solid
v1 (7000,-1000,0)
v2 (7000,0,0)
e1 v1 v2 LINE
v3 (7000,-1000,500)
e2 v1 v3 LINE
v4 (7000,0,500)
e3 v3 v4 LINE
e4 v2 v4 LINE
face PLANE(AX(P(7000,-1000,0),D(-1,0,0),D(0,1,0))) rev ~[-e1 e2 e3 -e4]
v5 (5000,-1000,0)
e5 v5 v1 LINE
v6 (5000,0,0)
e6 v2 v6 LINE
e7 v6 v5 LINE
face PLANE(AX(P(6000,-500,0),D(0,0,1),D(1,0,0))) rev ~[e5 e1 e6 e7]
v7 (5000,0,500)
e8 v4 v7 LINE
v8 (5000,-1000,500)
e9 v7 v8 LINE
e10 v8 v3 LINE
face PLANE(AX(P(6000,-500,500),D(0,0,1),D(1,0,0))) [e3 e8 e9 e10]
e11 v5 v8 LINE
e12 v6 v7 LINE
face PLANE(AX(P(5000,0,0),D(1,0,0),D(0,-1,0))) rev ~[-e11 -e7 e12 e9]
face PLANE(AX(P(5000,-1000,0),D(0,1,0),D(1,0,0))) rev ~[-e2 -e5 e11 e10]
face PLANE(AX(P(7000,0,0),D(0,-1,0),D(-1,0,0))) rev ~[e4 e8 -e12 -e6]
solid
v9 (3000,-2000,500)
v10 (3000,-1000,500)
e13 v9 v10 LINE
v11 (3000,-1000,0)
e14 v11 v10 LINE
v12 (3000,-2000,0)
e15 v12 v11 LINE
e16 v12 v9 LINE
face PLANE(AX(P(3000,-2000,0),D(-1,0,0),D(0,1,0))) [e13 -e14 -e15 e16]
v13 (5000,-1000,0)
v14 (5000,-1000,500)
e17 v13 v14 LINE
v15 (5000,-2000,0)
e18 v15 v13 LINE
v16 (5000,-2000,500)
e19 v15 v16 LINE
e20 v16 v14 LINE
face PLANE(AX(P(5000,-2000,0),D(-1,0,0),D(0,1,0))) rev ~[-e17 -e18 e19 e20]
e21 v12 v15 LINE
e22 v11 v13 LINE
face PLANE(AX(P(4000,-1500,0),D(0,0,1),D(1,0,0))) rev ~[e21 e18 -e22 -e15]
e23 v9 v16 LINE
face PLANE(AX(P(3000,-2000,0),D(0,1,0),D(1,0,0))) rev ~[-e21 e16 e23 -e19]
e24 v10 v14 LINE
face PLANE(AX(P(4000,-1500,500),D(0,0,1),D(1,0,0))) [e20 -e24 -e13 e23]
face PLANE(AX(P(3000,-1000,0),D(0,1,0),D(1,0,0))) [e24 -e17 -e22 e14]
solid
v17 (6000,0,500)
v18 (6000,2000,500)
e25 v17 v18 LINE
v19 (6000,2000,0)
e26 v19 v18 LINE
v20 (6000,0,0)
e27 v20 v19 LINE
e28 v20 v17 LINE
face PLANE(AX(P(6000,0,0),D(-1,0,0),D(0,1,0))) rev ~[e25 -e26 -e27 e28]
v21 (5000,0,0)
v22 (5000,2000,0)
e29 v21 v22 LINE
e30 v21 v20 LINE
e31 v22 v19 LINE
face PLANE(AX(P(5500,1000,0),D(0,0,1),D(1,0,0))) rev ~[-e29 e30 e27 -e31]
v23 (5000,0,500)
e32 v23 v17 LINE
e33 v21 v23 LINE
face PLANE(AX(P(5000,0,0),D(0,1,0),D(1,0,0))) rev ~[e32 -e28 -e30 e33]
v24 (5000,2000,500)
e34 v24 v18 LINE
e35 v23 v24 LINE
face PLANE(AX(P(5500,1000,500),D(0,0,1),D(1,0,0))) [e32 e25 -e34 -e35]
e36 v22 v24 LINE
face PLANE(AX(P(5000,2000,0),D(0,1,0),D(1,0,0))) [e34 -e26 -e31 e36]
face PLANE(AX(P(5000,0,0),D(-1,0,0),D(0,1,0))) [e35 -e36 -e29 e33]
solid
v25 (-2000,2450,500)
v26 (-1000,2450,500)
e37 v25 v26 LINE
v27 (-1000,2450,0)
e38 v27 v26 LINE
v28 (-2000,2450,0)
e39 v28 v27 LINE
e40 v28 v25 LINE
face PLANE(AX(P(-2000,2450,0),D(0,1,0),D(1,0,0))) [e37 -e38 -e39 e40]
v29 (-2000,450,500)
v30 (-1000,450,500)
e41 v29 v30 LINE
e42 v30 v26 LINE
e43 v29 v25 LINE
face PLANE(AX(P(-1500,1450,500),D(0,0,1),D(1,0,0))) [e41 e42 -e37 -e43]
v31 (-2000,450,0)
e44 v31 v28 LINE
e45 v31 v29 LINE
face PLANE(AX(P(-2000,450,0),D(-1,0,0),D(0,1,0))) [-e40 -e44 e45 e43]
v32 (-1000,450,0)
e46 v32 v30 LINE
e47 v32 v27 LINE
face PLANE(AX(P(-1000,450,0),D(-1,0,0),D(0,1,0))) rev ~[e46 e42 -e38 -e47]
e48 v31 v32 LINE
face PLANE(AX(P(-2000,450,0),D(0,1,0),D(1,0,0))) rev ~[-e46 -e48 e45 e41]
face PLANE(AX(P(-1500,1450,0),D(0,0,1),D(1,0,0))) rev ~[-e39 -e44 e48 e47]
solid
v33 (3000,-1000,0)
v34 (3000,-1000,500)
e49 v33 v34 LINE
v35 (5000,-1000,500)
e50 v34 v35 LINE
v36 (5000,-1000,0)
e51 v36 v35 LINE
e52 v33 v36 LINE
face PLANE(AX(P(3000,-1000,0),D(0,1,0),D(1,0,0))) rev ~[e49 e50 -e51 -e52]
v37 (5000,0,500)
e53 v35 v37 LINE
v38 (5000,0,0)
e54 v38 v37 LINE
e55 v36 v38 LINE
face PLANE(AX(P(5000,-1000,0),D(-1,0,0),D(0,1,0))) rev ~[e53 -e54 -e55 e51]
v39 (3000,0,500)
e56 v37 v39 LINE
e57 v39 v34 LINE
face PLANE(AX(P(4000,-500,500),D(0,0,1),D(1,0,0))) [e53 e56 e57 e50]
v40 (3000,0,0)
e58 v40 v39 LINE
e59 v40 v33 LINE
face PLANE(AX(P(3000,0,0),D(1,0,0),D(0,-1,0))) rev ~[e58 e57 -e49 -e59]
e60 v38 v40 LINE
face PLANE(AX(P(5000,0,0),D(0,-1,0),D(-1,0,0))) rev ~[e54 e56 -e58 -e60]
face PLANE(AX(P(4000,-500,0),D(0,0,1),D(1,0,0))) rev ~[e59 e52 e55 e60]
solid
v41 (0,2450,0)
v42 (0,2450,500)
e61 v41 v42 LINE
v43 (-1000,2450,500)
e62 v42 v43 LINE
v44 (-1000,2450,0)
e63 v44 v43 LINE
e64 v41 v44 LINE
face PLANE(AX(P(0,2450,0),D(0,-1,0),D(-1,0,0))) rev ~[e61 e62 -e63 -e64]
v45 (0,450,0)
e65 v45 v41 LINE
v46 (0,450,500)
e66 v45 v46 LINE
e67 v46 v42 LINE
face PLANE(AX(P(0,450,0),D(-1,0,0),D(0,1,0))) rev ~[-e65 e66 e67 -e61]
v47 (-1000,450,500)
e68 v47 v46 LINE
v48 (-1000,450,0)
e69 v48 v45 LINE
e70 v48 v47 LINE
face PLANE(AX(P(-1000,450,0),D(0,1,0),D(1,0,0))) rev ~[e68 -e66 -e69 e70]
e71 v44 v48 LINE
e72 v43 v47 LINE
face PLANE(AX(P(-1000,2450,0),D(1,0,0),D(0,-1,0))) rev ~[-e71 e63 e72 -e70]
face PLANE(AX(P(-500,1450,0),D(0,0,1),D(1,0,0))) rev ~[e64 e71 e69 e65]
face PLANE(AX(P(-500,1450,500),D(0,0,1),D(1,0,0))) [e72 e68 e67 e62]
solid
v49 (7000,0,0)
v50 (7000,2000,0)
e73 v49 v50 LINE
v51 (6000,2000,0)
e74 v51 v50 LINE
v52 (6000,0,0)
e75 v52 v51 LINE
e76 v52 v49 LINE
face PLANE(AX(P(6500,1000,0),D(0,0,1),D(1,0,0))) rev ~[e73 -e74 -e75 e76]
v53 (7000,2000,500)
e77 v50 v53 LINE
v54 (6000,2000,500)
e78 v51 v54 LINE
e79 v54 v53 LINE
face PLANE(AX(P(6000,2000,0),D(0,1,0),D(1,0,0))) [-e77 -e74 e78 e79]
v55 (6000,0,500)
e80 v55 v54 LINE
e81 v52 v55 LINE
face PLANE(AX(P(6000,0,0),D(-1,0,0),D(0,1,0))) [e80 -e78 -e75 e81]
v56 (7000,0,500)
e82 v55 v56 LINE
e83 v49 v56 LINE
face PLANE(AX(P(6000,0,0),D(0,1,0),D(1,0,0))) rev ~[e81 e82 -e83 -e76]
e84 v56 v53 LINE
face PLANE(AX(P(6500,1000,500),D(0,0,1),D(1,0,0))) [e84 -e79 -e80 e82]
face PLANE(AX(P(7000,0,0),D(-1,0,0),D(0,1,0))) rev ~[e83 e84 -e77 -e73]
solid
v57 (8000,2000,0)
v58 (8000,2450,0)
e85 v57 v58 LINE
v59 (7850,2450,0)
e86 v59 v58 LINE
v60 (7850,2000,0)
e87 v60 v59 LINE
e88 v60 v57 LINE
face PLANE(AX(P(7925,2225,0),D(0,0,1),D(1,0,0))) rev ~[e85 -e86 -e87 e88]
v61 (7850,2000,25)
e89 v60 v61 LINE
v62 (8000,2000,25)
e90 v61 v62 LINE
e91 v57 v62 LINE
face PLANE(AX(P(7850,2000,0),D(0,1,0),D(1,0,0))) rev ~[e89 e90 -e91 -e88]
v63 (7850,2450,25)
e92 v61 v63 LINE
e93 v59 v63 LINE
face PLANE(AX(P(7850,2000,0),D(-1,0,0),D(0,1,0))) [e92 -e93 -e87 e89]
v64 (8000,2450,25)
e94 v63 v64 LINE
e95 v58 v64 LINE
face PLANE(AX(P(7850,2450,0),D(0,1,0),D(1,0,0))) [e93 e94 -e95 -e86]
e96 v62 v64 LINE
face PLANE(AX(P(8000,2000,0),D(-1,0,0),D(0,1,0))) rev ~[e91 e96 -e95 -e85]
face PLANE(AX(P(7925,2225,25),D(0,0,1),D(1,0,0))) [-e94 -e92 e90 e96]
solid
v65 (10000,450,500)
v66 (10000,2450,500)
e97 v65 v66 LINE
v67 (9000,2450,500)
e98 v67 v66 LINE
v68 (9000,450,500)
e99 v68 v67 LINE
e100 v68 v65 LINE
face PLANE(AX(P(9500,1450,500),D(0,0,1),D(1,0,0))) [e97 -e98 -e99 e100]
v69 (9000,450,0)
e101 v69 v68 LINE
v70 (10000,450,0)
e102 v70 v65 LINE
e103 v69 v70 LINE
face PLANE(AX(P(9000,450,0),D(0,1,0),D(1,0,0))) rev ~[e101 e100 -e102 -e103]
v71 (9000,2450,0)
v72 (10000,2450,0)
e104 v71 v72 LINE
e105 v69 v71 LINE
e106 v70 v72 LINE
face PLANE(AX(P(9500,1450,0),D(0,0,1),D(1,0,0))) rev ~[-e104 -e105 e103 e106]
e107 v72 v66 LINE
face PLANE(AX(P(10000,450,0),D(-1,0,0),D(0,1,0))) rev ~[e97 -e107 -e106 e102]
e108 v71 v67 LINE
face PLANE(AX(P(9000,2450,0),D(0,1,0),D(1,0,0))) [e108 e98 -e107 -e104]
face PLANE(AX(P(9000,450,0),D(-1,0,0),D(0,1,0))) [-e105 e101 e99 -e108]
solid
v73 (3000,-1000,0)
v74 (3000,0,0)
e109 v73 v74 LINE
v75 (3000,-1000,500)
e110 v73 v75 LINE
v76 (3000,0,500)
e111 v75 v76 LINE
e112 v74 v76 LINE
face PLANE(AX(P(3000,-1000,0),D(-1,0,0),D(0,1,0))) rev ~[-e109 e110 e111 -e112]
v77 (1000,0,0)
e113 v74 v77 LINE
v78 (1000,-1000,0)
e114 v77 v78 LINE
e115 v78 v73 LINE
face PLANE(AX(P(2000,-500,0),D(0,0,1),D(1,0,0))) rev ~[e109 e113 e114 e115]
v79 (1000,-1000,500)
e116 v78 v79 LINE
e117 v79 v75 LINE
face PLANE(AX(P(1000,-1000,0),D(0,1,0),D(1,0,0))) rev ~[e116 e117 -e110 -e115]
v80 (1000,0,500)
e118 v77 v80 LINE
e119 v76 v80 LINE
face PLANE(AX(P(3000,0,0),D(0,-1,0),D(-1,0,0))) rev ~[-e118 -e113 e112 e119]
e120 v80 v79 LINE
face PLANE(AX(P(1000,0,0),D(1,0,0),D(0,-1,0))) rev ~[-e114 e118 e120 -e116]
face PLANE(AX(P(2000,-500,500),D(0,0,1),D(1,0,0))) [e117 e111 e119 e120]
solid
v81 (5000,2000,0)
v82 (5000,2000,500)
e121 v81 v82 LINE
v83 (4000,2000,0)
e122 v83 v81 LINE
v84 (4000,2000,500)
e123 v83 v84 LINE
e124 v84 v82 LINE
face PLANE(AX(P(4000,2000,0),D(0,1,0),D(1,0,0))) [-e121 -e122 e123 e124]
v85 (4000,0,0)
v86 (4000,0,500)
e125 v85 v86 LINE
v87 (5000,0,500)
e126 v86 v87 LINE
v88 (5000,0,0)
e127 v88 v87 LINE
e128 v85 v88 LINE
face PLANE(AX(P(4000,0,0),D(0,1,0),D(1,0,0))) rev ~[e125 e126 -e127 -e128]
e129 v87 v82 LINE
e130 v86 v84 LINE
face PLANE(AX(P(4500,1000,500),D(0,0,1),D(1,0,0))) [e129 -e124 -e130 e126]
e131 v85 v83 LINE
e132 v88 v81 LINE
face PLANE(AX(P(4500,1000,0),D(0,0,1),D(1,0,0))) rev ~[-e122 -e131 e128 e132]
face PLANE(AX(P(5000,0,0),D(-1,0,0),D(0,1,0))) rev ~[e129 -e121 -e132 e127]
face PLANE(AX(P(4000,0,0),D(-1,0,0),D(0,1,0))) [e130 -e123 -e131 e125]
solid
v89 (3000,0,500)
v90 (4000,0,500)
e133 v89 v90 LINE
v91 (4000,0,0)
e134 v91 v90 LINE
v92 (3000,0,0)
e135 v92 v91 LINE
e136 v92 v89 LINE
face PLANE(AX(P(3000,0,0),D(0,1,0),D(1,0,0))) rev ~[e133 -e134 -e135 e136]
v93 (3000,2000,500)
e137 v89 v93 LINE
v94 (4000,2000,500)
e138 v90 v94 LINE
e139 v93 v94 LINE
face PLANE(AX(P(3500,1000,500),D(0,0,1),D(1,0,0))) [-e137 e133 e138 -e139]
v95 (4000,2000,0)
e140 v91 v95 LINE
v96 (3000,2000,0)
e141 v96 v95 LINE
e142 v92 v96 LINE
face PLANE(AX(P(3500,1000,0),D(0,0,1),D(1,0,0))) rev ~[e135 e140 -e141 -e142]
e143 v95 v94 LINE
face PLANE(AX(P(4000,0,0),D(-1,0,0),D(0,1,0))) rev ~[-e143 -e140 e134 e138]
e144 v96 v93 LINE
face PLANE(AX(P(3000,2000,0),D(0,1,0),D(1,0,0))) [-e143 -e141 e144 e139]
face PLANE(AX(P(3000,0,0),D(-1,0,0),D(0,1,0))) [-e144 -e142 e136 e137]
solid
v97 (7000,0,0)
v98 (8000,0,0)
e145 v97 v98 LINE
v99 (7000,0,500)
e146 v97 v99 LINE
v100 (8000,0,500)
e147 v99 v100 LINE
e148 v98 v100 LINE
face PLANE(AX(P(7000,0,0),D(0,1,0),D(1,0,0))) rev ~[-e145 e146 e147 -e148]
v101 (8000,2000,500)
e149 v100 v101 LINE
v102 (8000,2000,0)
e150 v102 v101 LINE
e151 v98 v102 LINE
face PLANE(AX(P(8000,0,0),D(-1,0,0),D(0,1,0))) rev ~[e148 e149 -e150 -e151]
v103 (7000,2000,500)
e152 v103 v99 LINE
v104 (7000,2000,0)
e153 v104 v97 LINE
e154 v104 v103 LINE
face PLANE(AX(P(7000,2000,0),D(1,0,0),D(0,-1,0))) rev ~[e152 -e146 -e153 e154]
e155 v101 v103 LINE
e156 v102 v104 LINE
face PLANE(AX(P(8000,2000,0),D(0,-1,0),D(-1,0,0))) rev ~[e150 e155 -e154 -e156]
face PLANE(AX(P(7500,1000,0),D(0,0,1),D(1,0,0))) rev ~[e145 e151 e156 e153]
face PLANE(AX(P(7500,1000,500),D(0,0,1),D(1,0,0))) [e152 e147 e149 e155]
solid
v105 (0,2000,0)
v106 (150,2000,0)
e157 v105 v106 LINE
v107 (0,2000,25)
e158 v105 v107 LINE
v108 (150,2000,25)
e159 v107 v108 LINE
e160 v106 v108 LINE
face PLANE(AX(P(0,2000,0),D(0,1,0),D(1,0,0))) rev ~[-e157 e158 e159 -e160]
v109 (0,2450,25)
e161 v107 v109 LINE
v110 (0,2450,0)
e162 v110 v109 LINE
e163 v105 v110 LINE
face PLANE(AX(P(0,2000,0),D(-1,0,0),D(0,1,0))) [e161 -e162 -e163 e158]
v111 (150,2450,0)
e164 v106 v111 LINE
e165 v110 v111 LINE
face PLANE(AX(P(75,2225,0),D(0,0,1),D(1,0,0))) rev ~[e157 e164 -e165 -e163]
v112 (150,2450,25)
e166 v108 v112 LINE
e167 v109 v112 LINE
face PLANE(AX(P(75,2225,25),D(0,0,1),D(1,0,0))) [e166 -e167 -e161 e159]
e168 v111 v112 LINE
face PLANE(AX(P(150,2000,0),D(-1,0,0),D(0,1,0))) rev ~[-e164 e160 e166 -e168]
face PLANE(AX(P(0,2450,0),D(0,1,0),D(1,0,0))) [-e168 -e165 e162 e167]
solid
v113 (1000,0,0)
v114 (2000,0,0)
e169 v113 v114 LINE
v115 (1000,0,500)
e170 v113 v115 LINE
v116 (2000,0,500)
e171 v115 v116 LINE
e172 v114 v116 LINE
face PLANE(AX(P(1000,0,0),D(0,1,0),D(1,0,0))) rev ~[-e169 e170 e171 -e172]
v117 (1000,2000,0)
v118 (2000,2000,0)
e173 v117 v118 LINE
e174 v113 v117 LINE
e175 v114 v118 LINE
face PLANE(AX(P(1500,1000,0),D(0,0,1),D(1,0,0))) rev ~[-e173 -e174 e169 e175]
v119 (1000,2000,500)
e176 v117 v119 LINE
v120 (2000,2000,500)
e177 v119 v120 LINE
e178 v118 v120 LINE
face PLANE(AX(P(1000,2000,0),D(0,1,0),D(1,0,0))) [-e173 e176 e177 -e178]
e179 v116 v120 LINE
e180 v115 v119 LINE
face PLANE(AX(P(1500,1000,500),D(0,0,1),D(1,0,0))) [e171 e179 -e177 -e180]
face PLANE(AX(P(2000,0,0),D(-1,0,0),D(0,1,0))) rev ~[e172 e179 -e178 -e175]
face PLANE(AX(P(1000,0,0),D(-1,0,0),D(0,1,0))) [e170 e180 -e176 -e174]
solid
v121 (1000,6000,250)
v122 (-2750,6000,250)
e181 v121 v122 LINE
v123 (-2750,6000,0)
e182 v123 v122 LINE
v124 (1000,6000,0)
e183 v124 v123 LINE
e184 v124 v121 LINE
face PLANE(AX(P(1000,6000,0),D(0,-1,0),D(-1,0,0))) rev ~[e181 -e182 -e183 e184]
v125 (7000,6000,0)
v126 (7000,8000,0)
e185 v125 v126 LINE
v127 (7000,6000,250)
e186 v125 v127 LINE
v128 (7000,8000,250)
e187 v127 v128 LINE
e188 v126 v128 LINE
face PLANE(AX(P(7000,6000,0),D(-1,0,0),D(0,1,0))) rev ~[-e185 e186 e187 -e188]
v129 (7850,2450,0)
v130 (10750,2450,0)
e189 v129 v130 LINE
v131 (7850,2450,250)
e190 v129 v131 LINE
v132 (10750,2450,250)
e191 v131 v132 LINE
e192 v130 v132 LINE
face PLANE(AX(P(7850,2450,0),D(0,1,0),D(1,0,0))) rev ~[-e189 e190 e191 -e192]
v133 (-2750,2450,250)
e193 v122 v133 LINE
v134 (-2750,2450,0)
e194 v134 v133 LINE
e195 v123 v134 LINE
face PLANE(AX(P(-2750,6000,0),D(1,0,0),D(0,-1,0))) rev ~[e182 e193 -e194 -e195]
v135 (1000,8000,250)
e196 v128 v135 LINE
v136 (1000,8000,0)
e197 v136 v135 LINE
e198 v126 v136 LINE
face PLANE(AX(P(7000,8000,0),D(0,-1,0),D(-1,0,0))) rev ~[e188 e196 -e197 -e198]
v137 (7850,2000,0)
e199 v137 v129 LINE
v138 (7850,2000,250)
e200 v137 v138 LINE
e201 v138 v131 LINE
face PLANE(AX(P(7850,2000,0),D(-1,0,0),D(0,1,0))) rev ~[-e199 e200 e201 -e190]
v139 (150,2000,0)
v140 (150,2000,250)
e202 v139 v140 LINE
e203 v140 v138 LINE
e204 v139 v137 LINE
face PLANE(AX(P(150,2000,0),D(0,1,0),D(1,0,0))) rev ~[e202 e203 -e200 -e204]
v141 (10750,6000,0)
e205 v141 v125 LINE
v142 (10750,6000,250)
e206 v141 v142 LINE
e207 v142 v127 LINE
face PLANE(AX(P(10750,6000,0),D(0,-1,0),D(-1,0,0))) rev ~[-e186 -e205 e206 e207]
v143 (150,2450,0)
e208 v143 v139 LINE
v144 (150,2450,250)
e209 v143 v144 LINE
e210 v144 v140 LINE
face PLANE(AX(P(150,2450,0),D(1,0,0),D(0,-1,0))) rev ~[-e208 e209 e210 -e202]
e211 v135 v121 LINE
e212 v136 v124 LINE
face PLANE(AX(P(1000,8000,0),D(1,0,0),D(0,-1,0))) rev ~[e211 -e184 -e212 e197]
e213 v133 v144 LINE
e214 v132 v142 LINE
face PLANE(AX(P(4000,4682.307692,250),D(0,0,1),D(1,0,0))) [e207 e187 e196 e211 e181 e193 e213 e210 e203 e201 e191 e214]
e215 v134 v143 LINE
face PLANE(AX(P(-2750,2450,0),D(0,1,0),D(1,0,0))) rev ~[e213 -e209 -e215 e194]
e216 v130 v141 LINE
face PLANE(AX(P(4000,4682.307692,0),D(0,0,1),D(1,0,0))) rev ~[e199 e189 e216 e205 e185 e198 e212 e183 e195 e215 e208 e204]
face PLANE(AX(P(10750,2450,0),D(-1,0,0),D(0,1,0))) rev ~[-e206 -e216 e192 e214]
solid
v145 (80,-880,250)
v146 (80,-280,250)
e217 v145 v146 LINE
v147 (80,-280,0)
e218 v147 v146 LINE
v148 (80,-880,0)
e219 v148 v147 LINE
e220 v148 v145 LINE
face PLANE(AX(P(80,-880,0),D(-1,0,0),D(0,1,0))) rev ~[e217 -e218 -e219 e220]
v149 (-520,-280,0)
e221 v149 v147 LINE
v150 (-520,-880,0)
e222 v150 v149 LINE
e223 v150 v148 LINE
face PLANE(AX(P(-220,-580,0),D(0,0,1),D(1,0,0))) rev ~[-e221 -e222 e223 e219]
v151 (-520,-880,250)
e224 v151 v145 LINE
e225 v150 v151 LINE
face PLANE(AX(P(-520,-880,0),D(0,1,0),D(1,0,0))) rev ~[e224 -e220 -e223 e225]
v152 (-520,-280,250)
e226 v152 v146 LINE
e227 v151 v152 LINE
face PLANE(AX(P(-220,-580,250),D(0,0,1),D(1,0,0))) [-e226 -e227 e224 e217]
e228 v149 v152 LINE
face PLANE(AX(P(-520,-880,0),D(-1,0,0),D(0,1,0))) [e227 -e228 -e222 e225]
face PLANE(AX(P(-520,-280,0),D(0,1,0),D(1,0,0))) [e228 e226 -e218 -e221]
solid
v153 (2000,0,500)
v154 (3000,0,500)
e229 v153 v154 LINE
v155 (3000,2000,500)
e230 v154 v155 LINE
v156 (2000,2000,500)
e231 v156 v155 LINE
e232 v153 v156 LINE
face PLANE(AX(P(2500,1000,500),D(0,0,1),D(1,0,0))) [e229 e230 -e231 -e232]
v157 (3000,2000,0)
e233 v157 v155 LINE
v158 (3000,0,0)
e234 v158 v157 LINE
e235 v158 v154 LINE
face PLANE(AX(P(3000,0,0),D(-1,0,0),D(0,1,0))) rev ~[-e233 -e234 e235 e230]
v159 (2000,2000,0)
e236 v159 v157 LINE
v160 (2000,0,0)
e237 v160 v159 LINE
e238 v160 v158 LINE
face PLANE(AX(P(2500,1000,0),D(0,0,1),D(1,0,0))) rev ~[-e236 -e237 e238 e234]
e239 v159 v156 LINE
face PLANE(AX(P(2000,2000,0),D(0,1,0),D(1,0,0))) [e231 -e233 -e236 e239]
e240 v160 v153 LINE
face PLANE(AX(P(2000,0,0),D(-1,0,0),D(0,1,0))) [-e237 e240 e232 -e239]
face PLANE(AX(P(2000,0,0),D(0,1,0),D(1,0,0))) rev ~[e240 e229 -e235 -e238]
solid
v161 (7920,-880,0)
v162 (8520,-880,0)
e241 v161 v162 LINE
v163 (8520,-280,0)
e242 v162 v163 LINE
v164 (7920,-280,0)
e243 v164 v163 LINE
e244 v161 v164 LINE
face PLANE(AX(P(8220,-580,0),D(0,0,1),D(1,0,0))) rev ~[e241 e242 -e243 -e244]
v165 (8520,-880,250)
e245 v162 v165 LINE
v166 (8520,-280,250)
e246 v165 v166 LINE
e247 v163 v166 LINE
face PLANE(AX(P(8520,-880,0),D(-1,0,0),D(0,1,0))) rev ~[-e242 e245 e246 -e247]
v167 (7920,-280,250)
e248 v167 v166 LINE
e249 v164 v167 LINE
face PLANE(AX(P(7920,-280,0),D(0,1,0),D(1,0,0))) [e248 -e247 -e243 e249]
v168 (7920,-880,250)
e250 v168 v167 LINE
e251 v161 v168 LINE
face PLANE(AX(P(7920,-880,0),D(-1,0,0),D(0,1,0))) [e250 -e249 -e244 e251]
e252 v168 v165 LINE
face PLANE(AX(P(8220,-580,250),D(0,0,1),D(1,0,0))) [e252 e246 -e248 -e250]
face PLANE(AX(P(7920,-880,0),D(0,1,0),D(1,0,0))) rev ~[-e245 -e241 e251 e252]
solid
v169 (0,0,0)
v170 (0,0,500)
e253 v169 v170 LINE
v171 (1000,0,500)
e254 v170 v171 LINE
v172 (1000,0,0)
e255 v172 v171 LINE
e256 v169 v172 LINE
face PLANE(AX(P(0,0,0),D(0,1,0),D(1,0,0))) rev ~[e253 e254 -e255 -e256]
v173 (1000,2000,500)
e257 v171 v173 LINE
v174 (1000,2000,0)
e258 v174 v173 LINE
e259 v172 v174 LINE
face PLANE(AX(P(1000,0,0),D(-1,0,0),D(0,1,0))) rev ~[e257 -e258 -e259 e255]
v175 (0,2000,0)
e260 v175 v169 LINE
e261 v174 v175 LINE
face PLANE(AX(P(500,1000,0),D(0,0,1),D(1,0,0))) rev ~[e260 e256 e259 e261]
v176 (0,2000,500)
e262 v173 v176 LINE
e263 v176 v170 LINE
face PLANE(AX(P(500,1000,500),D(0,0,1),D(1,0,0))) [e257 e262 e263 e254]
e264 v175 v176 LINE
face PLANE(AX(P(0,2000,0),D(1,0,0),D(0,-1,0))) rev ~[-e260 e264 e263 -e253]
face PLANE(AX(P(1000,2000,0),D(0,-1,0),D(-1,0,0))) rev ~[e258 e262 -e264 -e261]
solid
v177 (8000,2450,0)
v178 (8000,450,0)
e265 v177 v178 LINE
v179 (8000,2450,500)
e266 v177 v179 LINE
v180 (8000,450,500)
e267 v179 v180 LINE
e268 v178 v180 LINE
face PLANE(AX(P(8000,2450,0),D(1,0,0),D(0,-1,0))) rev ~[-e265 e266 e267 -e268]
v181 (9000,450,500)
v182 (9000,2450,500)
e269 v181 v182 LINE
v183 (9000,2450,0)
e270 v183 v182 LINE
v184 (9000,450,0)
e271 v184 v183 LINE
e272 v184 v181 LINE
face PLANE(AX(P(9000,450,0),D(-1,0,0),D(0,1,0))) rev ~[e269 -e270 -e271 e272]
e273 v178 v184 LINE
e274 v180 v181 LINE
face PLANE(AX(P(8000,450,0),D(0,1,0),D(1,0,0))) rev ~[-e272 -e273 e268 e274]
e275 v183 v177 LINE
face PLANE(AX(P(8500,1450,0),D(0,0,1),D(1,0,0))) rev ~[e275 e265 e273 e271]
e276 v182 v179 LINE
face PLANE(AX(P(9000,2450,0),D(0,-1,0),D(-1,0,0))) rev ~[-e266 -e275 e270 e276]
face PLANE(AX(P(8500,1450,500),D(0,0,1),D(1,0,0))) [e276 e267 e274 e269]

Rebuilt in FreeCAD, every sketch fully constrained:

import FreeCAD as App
import Part
import Sketcher

V = App.Vector

doc = App.newDocument("Part")
body = doc.addObject("PartDesign::Body", "Body")

# Sketch on XY plane
sketch1 = doc.addObject("Sketcher::SketchObject", "Sketch")
body.addObject(sketch1)
sketch1.AttachmentSupport = (doc.XY_Plane, [""])
sketch1.MapMode = "FlatFace"
sketch1.addGeometry(Part.LineSegment(V(-2000, 2450, 0), V(-2000, 450, 0)), False)
sketch1.addGeometry(Part.LineSegment(V(-2000, 450, 0), V(-1000, 450, 0)), False)
sketch1.addGeometry(Part.LineSegment(V(-1000, 450, 0), V(-1000, 2450, 0)), False)
sketch1.addGeometry(Part.LineSegment(V(-1000, 2450, 0), V(-2000, 2450, 0)), False)
sketch1.addConstraint(Sketcher.Constraint("Coincident", 0, 2, 1, 1))
sketch1.addConstraint(Sketcher.Constraint("Coincident", 1, 2, 2, 1))
sketch1.addConstraint(Sketcher.Constraint("Coincident", 2, 2, 3, 1))
sketch1.addConstraint(Sketcher.Constraint("Coincident", 3, 2, 0, 1))
sketch1.addConstraint(Sketcher.Constraint("Vertical", 0))
sketch1.addConstraint(Sketcher.Constraint("Horizontal", 1))
sketch1.addConstraint(Sketcher.Constraint("Vertical", 2))
sketch1.addConstraint(Sketcher.Constraint("Horizontal", 3))
sketch1.addConstraint(Sketcher.Constraint("DistanceX", 1, 1, 1, 2, 1000.0))
sketch1.addConstraint(Sketcher.Constraint("DistanceY", 0, 2, 0, 1, 2000.0))
sketch1.addConstraint(Sketcher.Constraint("DistanceX", 0, 2, -1, 1, 2000.0))
sketch1.addConstraint(Sketcher.Constraint("DistanceY", -1, 1, 0, 2, 450.0))
pad1 = doc.addObject("PartDesign::Pad", "Pad")
body.addObject(pad1)
pad1.Profile = sketch1
pad1.Length = 500
body2 = doc.addObject("PartDesign::Body", "Body001")
body2.AllowCompound = True

# Sketch on XY plane
sketch2 = doc.addObject("Sketcher::SketchObject", "Sketch001")
body2.addObject(sketch2)
sketch2.AttachmentSupport = (doc.getObject("XY_Plane001"), [""])
sketch2.MapMode = "FlatFace"
sketch2.addGeometry(Part.LineSegment(V(0, 0, 0), V(1000, 0, 0)), False)
sketch2.addGeometry(Part.LineSegment(V(1000, 0, 0), V(1000, 2000, 0)), False)
sketch2.addGeometry(Part.LineSegment(V(1000, 2000, 0), V(0, 2000, 0)), False)
sketch2.addGeometry(Part.LineSegment(V(0, 2000, 0), V(0, 0, 0)), False)
sketch2.addGeometry(Part.LineSegment(V(2000, 2000, 0), V(2000, 0, 0)), False)
sketch2.addGeometry(Part.LineSegment(V(2000, 0, 0), V(3000, 0, 0)), False)
sketch2.addGeometry(Part.LineSegment(V(3000, 0, 0), V(3000, 2000, 0)), False)
sketch2.addGeometry(Part.LineSegment(V(3000, 2000, 0), V(2000, 2000, 0)), False)
sketch2.addGeometry(Part.LineSegment(V(4000, 2000, 0), V(4000, 0, 0)), False)
sketch2.addGeometry(Part.LineSegment(V(4000, 0, 0), V(5000, 0, 0)), False)
sketch2.addGeometry(Part.LineSegment(V(5000, 0, 0), V(5000, 2000, 0)), False)
sketch2.addGeometry(Part.LineSegment(V(5000, 2000, 0), V(4000, 2000, 0)), False)
sketch2.addGeometry(Part.LineSegment(V(6000, 2000, 0), V(6000, 0, 0)), False)
sketch2.addGeometry(Part.LineSegment(V(6000, 0, 0), V(7000, 0, 0)), False)
sketch2.addGeometry(Part.LineSegment(V(7000, 0, 0), V(7000, 2000, 0)), False)
sketch2.addGeometry(Part.LineSegment(V(7000, 2000, 0), V(6000, 2000, 0)), False)
sketch2.addGeometry(Part.LineSegment(V(8000, 450, 0), V(9000, 450, 0)), False)
sketch2.addGeometry(Part.LineSegment(V(9000, 450, 0), V(9000, 2450, 0)), False)
sketch2.addGeometry(Part.LineSegment(V(9000, 2450, 0), V(8000, 2450, 0)), False)
sketch2.addGeometry(Part.LineSegment(V(8000, 2450, 0), V(8000, 450, 0)), False)
sketch2.addConstraint(Sketcher.Constraint("Coincident", 0, 2, 1, 1))
sketch2.addConstraint(Sketcher.Constraint("Coincident", 1, 2, 2, 1))
sketch2.addConstraint(Sketcher.Constraint("Coincident", 2, 2, 3, 1))
sketch2.addConstraint(Sketcher.Constraint("Coincident", 3, 2, 0, 1))
sketch2.addConstraint(Sketcher.Constraint("Coincident", 4, 2, 5, 1))
sketch2.addConstraint(Sketcher.Constraint("Coincident", 5, 2, 6, 1))
sketch2.addConstraint(Sketcher.Constraint("Coincident", 6, 2, 7, 1))
sketch2.addConstraint(Sketcher.Constraint("Coincident", 7, 2, 4, 1))
sketch2.addConstraint(Sketcher.Constraint("Coincident", 8, 2, 9, 1))
sketch2.addConstraint(Sketcher.Constraint("Coincident", 9, 2, 10, 1))
sketch2.addConstraint(Sketcher.Constraint("Coincident", 10, 2, 11, 1))
sketch2.addConstraint(Sketcher.Constraint("Coincident", 11, 2, 8, 1))
sketch2.addConstraint(Sketcher.Constraint("Coincident", 12, 2, 13, 1))
sketch2.addConstraint(Sketcher.Constraint("Coincident", 13, 2, 14, 1))
sketch2.addConstraint(Sketcher.Constraint("Coincident", 14, 2, 15, 1))
sketch2.addConstraint(Sketcher.Constraint("Coincident", 15, 2, 12, 1))
sketch2.addConstraint(Sketcher.Constraint("Coincident", 16, 2, 17, 1))
sketch2.addConstraint(Sketcher.Constraint("Coincident", 17, 2, 18, 1))
sketch2.addConstraint(Sketcher.Constraint("Coincident", 18, 2, 19, 1))
sketch2.addConstraint(Sketcher.Constraint("Coincident", 19, 2, 16, 1))
sketch2.addConstraint(Sketcher.Constraint("Horizontal", 0))
sketch2.addConstraint(Sketcher.Constraint("Vertical", 1))
sketch2.addConstraint(Sketcher.Constraint("Horizontal", 2))
sketch2.addConstraint(Sketcher.Constraint("Vertical", 3))
sketch2.addConstraint(Sketcher.Constraint("Vertical", 4))
sketch2.addConstraint(Sketcher.Constraint("Horizontal", 5))
sketch2.addConstraint(Sketcher.Constraint("Vertical", 6))
sketch2.addConstraint(Sketcher.Constraint("Horizontal", 7))
sketch2.addConstraint(Sketcher.Constraint("Vertical", 8))
sketch2.addConstraint(Sketcher.Constraint("Horizontal", 9))
sketch2.addConstraint(Sketcher.Constraint("Vertical", 10))
sketch2.addConstraint(Sketcher.Constraint("Horizontal", 11))
sketch2.addConstraint(Sketcher.Constraint("Vertical", 12))
sketch2.addConstraint(Sketcher.Constraint("Horizontal", 13))
sketch2.addConstraint(Sketcher.Constraint("Vertical", 14))
sketch2.addConstraint(Sketcher.Constraint("Horizontal", 15))
sketch2.addConstraint(Sketcher.Constraint("Horizontal", 16))
sketch2.addConstraint(Sketcher.Constraint("Vertical", 17))
sketch2.addConstraint(Sketcher.Constraint("Horizontal", 18))
sketch2.addConstraint(Sketcher.Constraint("Vertical", 19))
sketch2.addConstraint(Sketcher.Constraint("Coincident", 3, 2, -1, 1))
sketch2.addConstraint(Sketcher.Constraint("PointOnObject", 4, 2, -1))
sketch2.addConstraint(Sketcher.Constraint("PointOnObject", 8, 2, -1))
sketch2.addConstraint(Sketcher.Constraint("PointOnObject", 12, 2, -1))
sketch2.addConstraint(Sketcher.Constraint("Horizontal", 2, 2, 6, 2))
sketch2.addConstraint(Sketcher.Constraint("Horizontal", 7, 2, 10, 2))
sketch2.addConstraint(Sketcher.Constraint("Horizontal", 11, 2, 14, 2))
sketch2.addConstraint(Sketcher.Constraint("Equal", 2, 5))
sketch2.addConstraint(Sketcher.Constraint("Equal", 7, 9))
sketch2.addConstraint(Sketcher.Constraint("Equal", 11, 13))
sketch2.addConstraint(Sketcher.Constraint("Equal", 15, 16))
sketch2.addConstraint(Sketcher.Constraint("Equal", 14, 17))
sketch2.addConstraint(Sketcher.Constraint("DistanceX", 0, 1, 0, 2, 1000.0))
sketch2.addConstraint(Sketcher.Constraint("DistanceY", 1, 1, 1, 2, 2000.0))
sketch2.addConstraint(Sketcher.Constraint("DistanceX", -1, 1, 4, 2, 2000.0))
sketch2.addConstraint(Sketcher.Constraint("DistanceX", -1, 1, 8, 2, 4000.0))
sketch2.addConstraint(Sketcher.Constraint("DistanceX", -1, 1, 12, 2, 6000.0))
sketch2.addConstraint(Sketcher.Constraint("DistanceX", -1, 1, 16, 2, 9000.0))
sketch2.addConstraint(Sketcher.Constraint("DistanceY", -1, 1, 16, 2, 450.0))
pad2 = doc.addObject("PartDesign::Pad", "Pad001")
body2.addObject(pad2)
pad2.Profile = sketch2
pad2.Length = 500
body3 = doc.addObject("PartDesign::Body", "Body002")
body3.AllowCompound = True

# Sketch on XY plane
sketch3 = doc.addObject("Sketcher::SketchObject", "Sketch002")
body3.addObject(sketch3)
sketch3.AttachmentSupport = (doc.getObject("XY_Plane002"), [""])
sketch3.MapMode = "FlatFace"
sketch3.addGeometry(Part.LineSegment(V(-1000, 450, 0), V(0, 450, 0)), False)
sketch3.addGeometry(Part.LineSegment(V(0, 450, 0), V(0, 2450, 0)), False)
sketch3.addGeometry(Part.LineSegment(V(0, 2450, 0), V(-1000, 2450, 0)), False)
sketch3.addGeometry(Part.LineSegment(V(-1000, 2450, 0), V(-1000, 450, 0)), False)
sketch3.addGeometry(Part.LineSegment(V(1000, 2000, 0), V(1000, 0, 0)), False)
sketch3.addGeometry(Part.LineSegment(V(1000, 0, 0), V(2000, 0, 0)), False)
sketch3.addGeometry(Part.LineSegment(V(2000, 0, 0), V(2000, 2000, 0)), False)
sketch3.addGeometry(Part.LineSegment(V(2000, 2000, 0), V(1000, 2000, 0)), False)
sketch3.addGeometry(Part.LineSegment(V(3000, 2000, 0), V(3000, 0, 0)), False)
sketch3.addGeometry(Part.LineSegment(V(3000, 0, 0), V(4000, 0, 0)), False)
sketch3.addGeometry(Part.LineSegment(V(4000, 0, 0), V(4000, 2000, 0)), False)
sketch3.addGeometry(Part.LineSegment(V(4000, 2000, 0), V(3000, 2000, 0)), False)
sketch3.addGeometry(Part.LineSegment(V(5000, 2000, 0), V(5000, 0, 0)), False)
sketch3.addGeometry(Part.LineSegment(V(5000, 0, 0), V(6000, 0, 0)), False)
sketch3.addGeometry(Part.LineSegment(V(6000, 0, 0), V(6000, 2000, 0)), False)
sketch3.addGeometry(Part.LineSegment(V(6000, 2000, 0), V(5000, 2000, 0)), False)
sketch3.addGeometry(Part.LineSegment(V(7000, 2000, 0), V(7000, 0, 0)), False)
sketch3.addGeometry(Part.LineSegment(V(7000, 0, 0), V(8000, 0, 0)), False)
sketch3.addGeometry(Part.LineSegment(V(8000, 0, 0), V(8000, 2000, 0)), False)
sketch3.addGeometry(Part.LineSegment(V(8000, 2000, 0), V(7000, 2000, 0)), False)
sketch3.addGeometry(Part.LineSegment(V(9000, 2450, 0), V(9000, 450, 0)), False)
sketch3.addGeometry(Part.LineSegment(V(9000, 450, 0), V(10000, 450, 0)), False)
sketch3.addGeometry(Part.LineSegment(V(10000, 450, 0), V(10000, 2450, 0)), False)
sketch3.addGeometry(Part.LineSegment(V(10000, 2450, 0), V(9000, 2450, 0)), False)
sketch3.addConstraint(Sketcher.Constraint("Coincident", 0, 2, 1, 1))
sketch3.addConstraint(Sketcher.Constraint("Coincident", 1, 2, 2, 1))
sketch3.addConstraint(Sketcher.Constraint("Coincident", 2, 2, 3, 1))
sketch3.addConstraint(Sketcher.Constraint("Coincident", 3, 2, 0, 1))
sketch3.addConstraint(Sketcher.Constraint("Coincident", 4, 2, 5, 1))
sketch3.addConstraint(Sketcher.Constraint("Coincident", 5, 2, 6, 1))
sketch3.addConstraint(Sketcher.Constraint("Coincident", 6, 2, 7, 1))
sketch3.addConstraint(Sketcher.Constraint("Coincident", 7, 2, 4, 1))
sketch3.addConstraint(Sketcher.Constraint("Coincident", 8, 2, 9, 1))
sketch3.addConstraint(Sketcher.Constraint("Coincident", 9, 2, 10, 1))
sketch3.addConstraint(Sketcher.Constraint("Coincident", 10, 2, 11, 1))
sketch3.addConstraint(Sketcher.Constraint("Coincident", 11, 2, 8, 1))
sketch3.addConstraint(Sketcher.Constraint("Coincident", 12, 2, 13, 1))
sketch3.addConstraint(Sketcher.Constraint("Coincident", 13, 2, 14, 1))
sketch3.addConstraint(Sketcher.Constraint("Coincident", 14, 2, 15, 1))
sketch3.addConstraint(Sketcher.Constraint("Coincident", 15, 2, 12, 1))
sketch3.addConstraint(Sketcher.Constraint("Coincident", 16, 2, 17, 1))
sketch3.addConstraint(Sketcher.Constraint("Coincident", 17, 2, 18, 1))
sketch3.addConstraint(Sketcher.Constraint("Coincident", 18, 2, 19, 1))
sketch3.addConstraint(Sketcher.Constraint("Coincident", 19, 2, 16, 1))
sketch3.addConstraint(Sketcher.Constraint("Coincident", 20, 2, 21, 1))
sketch3.addConstraint(Sketcher.Constraint("Coincident", 21, 2, 22, 1))
sketch3.addConstraint(Sketcher.Constraint("Coincident", 22, 2, 23, 1))
sketch3.addConstraint(Sketcher.Constraint("Coincident", 23, 2, 20, 1))
sketch3.addConstraint(Sketcher.Constraint("Horizontal", 0))
sketch3.addConstraint(Sketcher.Constraint("Vertical", 1))
sketch3.addConstraint(Sketcher.Constraint("Horizontal", 2))
sketch3.addConstraint(Sketcher.Constraint("Vertical", 3))
sketch3.addConstraint(Sketcher.Constraint("Vertical", 4))
sketch3.addConstraint(Sketcher.Constraint("Horizontal", 5))
sketch3.addConstraint(Sketcher.Constraint("Vertical", 6))
sketch3.addConstraint(Sketcher.Constraint("Horizontal", 7))
sketch3.addConstraint(Sketcher.Constraint("Vertical", 8))
sketch3.addConstraint(Sketcher.Constraint("Horizontal", 9))
sketch3.addConstraint(Sketcher.Constraint("Vertical", 10))
sketch3.addConstraint(Sketcher.Constraint("Horizontal", 11))
sketch3.addConstraint(Sketcher.Constraint("Vertical", 12))
sketch3.addConstraint(Sketcher.Constraint("Horizontal", 13))
sketch3.addConstraint(Sketcher.Constraint("Vertical", 14))
sketch3.addConstraint(Sketcher.Constraint("Horizontal", 15))
sketch3.addConstraint(Sketcher.Constraint("Vertical", 16))
sketch3.addConstraint(Sketcher.Constraint("Horizontal", 17))
sketch3.addConstraint(Sketcher.Constraint("Vertical", 18))
sketch3.addConstraint(Sketcher.Constraint("Horizontal", 19))
sketch3.addConstraint(Sketcher.Constraint("Vertical", 20))
sketch3.addConstraint(Sketcher.Constraint("Horizontal", 21))
sketch3.addConstraint(Sketcher.Constraint("Vertical", 22))
sketch3.addConstraint(Sketcher.Constraint("Horizontal", 23))
sketch3.addConstraint(Sketcher.Constraint("PointOnObject", 0, 2, -2))
sketch3.addConstraint(Sketcher.Constraint("PointOnObject", 4, 2, -1))
sketch3.addConstraint(Sketcher.Constraint("PointOnObject", 8, 2, -1))
sketch3.addConstraint(Sketcher.Constraint("PointOnObject", 12, 2, -1))
sketch3.addConstraint(Sketcher.Constraint("PointOnObject", 16, 2, -1))
sketch3.addConstraint(Sketcher.Constraint("Horizontal", 7, 2, 10, 2))
sketch3.addConstraint(Sketcher.Constraint("Horizontal", 11, 2, 14, 2))
sketch3.addConstraint(Sketcher.Constraint("Horizontal", 15, 2, 18, 2))
sketch3.addConstraint(Sketcher.Constraint("Horizontal", 3, 2, 20, 2))
sketch3.addConstraint(Sketcher.Constraint("Horizontal", 2, 2, 22, 2))
sketch3.addConstraint(Sketcher.Constraint("Equal", 2, 5))
sketch3.addConstraint(Sketcher.Constraint("Equal", 7, 9))
sketch3.addConstraint(Sketcher.Constraint("Equal", 11, 13))
sketch3.addConstraint(Sketcher.Constraint("Equal", 15, 17))
sketch3.addConstraint(Sketcher.Constraint("Equal", 19, 21))
sketch3.addConstraint(Sketcher.Constraint("Equal", 3, 4))
sketch3.addConstraint(Sketcher.Constraint("DistanceX", 0, 1, 0, 2, 1000.0))
sketch3.addConstraint(Sketcher.Constraint("DistanceY", 1, 1, 1, 2, 2000.0))
sketch3.addConstraint(Sketcher.Constraint("DistanceY", -1, 1, 0, 2, 450.0))
sketch3.addConstraint(Sketcher.Constraint("DistanceX", -1, 1, 4, 2, 1000.0))
sketch3.addConstraint(Sketcher.Constraint("DistanceX", -1, 1, 8, 2, 3000.0))
sketch3.addConstraint(Sketcher.Constraint("DistanceX", -1, 1, 12, 2, 5000.0))
sketch3.addConstraint(Sketcher.Constraint("DistanceX", -1, 1, 16, 2, 7000.0))
sketch3.addConstraint(Sketcher.Constraint("DistanceX", -1, 1, 20, 2, 9000.0))
pad3 = doc.addObject("PartDesign::Pad", "Pad002")
body3.addObject(pad3)
pad3.Profile = sketch3
pad3.Length = 500
body4 = doc.addObject("PartDesign::Body", "Body003")
body4.AllowCompound = True

# Sketch on XY plane
sketch4 = doc.addObject("Sketcher::SketchObject", "Sketch003")
body4.addObject(sketch4)
sketch4.AttachmentSupport = (doc.getObject("XY_Plane003"), [""])
sketch4.MapMode = "FlatFace"
sketch4.addGeometry(Part.LineSegment(V(1000, 0, 0), V(1000, -1000, 0)), False)
sketch4.addGeometry(Part.LineSegment(V(1000, -1000, 0), V(3000, -1000, 0)), False)
sketch4.addGeometry(Part.LineSegment(V(3000, -1000, 0), V(3000, 0, 0)), False)
sketch4.addGeometry(Part.LineSegment(V(3000, 0, 0), V(1000, 0, 0)), False)
sketch4.addGeometry(Part.LineSegment(V(3000, -1000, 0), V(3000, -2000, 0)), False)
sketch4.addGeometry(Part.LineSegment(V(3000, -2000, 0), V(5000, -2000, 0)), False)
sketch4.addGeometry(Part.LineSegment(V(5000, -2000, 0), V(5000, -1000, 0)), False)
sketch4.addGeometry(Part.LineSegment(V(5000, -1000, 0), V(3000, -1000, 0)), False)
sketch4.addGeometry(Part.LineSegment(V(5000, 0, 0), V(5000, -1000, 0)), False)
sketch4.addGeometry(Part.LineSegment(V(5000, -1000, 0), V(7000, -1000, 0)), False)
sketch4.addGeometry(Part.LineSegment(V(7000, -1000, 0), V(7000, 0, 0)), False)
sketch4.addGeometry(Part.LineSegment(V(7000, 0, 0), V(5000, 0, 0)), False)
sketch4.addConstraint(Sketcher.Constraint("Coincident", 0, 2, 1, 1))
sketch4.addConstraint(Sketcher.Constraint("Coincident", 1, 2, 2, 1))
sketch4.addConstraint(Sketcher.Constraint("Coincident", 2, 2, 3, 1))
sketch4.addConstraint(Sketcher.Constraint("Coincident", 3, 2, 0, 1))
sketch4.addConstraint(Sketcher.Constraint("Coincident", 4, 2, 5, 1))
sketch4.addConstraint(Sketcher.Constraint("Coincident", 5, 2, 6, 1))
sketch4.addConstraint(Sketcher.Constraint("Coincident", 6, 2, 7, 1))
sketch4.addConstraint(Sketcher.Constraint("Coincident", 7, 2, 4, 1))
sketch4.addConstraint(Sketcher.Constraint("Coincident", 8, 2, 9, 1))
sketch4.addConstraint(Sketcher.Constraint("Coincident", 9, 2, 10, 1))
sketch4.addConstraint(Sketcher.Constraint("Coincident", 10, 2, 11, 1))
sketch4.addConstraint(Sketcher.Constraint("Coincident", 11, 2, 8, 1))
sketch4.addConstraint(Sketcher.Constraint("Vertical", 0))
sketch4.addConstraint(Sketcher.Constraint("Horizontal", 1))
sketch4.addConstraint(Sketcher.Constraint("Vertical", 2))
sketch4.addConstraint(Sketcher.Constraint("Horizontal", 3))
sketch4.addConstraint(Sketcher.Constraint("Vertical", 4))
sketch4.addConstraint(Sketcher.Constraint("Horizontal", 5))
sketch4.addConstraint(Sketcher.Constraint("Vertical", 6))
sketch4.addConstraint(Sketcher.Constraint("Horizontal", 7))
sketch4.addConstraint(Sketcher.Constraint("Vertical", 8))
sketch4.addConstraint(Sketcher.Constraint("Horizontal", 9))
sketch4.addConstraint(Sketcher.Constraint("Vertical", 10))
sketch4.addConstraint(Sketcher.Constraint("Horizontal", 11))
sketch4.addConstraint(Sketcher.Constraint("Coincident", 7, 2, 1, 2))
sketch4.addConstraint(Sketcher.Constraint("Coincident", 8, 2, 6, 2))
sketch4.addConstraint(Sketcher.Constraint("PointOnObject", 2, 2, -1))
sketch4.addConstraint(Sketcher.Constraint("PointOnObject", 10, 2, -1))
sketch4.addConstraint(Sketcher.Constraint("Equal", 3, 5))
sketch4.addConstraint(Sketcher.Constraint("Equal", 7, 9))
sketch4.addConstraint(Sketcher.Constraint("Equal", 2, 4))
sketch4.addConstraint(Sketcher.Constraint("DistanceX", 1, 1, 1, 2, 2000.0))
sketch4.addConstraint(Sketcher.Constraint("DistanceY", 0, 2, 0, 1, 1000.0))
sketch4.addConstraint(Sketcher.Constraint("DistanceX", -1, 1, 0, 2, 1000.0))
pad4 = doc.addObject("PartDesign::Pad", "Pad003")
body4.addObject(pad4)
pad4.Profile = sketch4
pad4.Length = 500
body5 = doc.addObject("PartDesign::Body", "Body004")
body5.AllowCompound = True

# Sketch on XY plane
sketch5 = doc.addObject("Sketcher::SketchObject", "Sketch004")
body5.addObject(sketch5)
sketch5.AttachmentSupport = (doc.getObject("XY_Plane004"), [""])
sketch5.MapMode = "FlatFace"
sketch5.addGeometry(Part.LineSegment(V(0, 2450, 0), V(0, 2000, 0)), False)
sketch5.addGeometry(Part.LineSegment(V(0, 2000, 0), V(150, 2000, 0)), False)
sketch5.addGeometry(Part.LineSegment(V(150, 2000, 0), V(150, 2450, 0)), False)
sketch5.addGeometry(Part.LineSegment(V(150, 2450, 0), V(0, 2450, 0)), False)
sketch5.addGeometry(Part.LineSegment(V(7850, 2450, 0), V(7850, 2000, 0)), False)
sketch5.addGeometry(Part.LineSegment(V(7850, 2000, 0), V(8000, 2000, 0)), False)
sketch5.addGeometry(Part.LineSegment(V(8000, 2000, 0), V(8000, 2450, 0)), False)
sketch5.addGeometry(Part.LineSegment(V(8000, 2450, 0), V(7850, 2450, 0)), False)
sketch5.addConstraint(Sketcher.Constraint("Coincident", 0, 2, 1, 1))
sketch5.addConstraint(Sketcher.Constraint("Coincident", 1, 2, 2, 1))
sketch5.addConstraint(Sketcher.Constraint("Coincident", 2, 2, 3, 1))
sketch5.addConstraint(Sketcher.Constraint("Coincident", 3, 2, 0, 1))
sketch5.addConstraint(Sketcher.Constraint("Coincident", 4, 2, 5, 1))
sketch5.addConstraint(Sketcher.Constraint("Coincident", 5, 2, 6, 1))
sketch5.addConstraint(Sketcher.Constraint("Coincident", 6, 2, 7, 1))
sketch5.addConstraint(Sketcher.Constraint("Coincident", 7, 2, 4, 1))
sketch5.addConstraint(Sketcher.Constraint("Vertical", 0))
sketch5.addConstraint(Sketcher.Constraint("Horizontal", 1))
sketch5.addConstraint(Sketcher.Constraint("Vertical", 2))
sketch5.addConstraint(Sketcher.Constraint("Horizontal", 3))
sketch5.addConstraint(Sketcher.Constraint("Vertical", 4))
sketch5.addConstraint(Sketcher.Constraint("Horizontal", 5))
sketch5.addConstraint(Sketcher.Constraint("Vertical", 6))
sketch5.addConstraint(Sketcher.Constraint("Horizontal", 7))
sketch5.addConstraint(Sketcher.Constraint("PointOnObject", 0, 2, -2))
sketch5.addConstraint(Sketcher.Constraint("Horizontal", 1, 2, 4, 2))
sketch5.addConstraint(Sketcher.Constraint("Horizontal", 3, 2, 6, 2))
sketch5.addConstraint(Sketcher.Constraint("Equal", 3, 5))
sketch5.addConstraint(Sketcher.Constraint("DistanceX", 1, 1, 1, 2, 150.0))
sketch5.addConstraint(Sketcher.Constraint("DistanceY", 0, 2, 0, 1, 450.0))
sketch5.addConstraint(Sketcher.Constraint("DistanceY", -1, 1, 0, 2, 2000.0))
sketch5.addConstraint(Sketcher.Constraint("DistanceX", -1, 1, 4, 2, 7850.0))
pad5 = doc.addObject("PartDesign::Pad", "Pad004")
body5.addObject(pad5)
pad5.Profile = sketch5
pad5.Length = 25
body6 = doc.addObject("PartDesign::Body", "Body005")

# Sketch on XY plane
sketch6 = doc.addObject("Sketcher::SketchObject", "Sketch005")
body6.addObject(sketch6)
sketch6.AttachmentSupport = (doc.getObject("XY_Plane005"), [""])
sketch6.MapMode = "FlatFace"
sketch6.addGeometry(Part.LineSegment(V(3000, 0, 0), V(3000, -1000, 0)), False)
sketch6.addGeometry(Part.LineSegment(V(3000, -1000, 0), V(5000, -1000, 0)), False)
sketch6.addGeometry(Part.LineSegment(V(5000, -1000, 0), V(5000, 0, 0)), False)
sketch6.addGeometry(Part.LineSegment(V(5000, 0, 0), V(3000, 0, 0)), False)
sketch6.addConstraint(Sketcher.Constraint("Coincident", 0, 2, 1, 1))
sketch6.addConstraint(Sketcher.Constraint("Coincident", 1, 2, 2, 1))
sketch6.addConstraint(Sketcher.Constraint("Coincident", 2, 2, 3, 1))
sketch6.addConstraint(Sketcher.Constraint("Coincident", 3, 2, 0, 1))
sketch6.addConstraint(Sketcher.Constraint("Vertical", 0))
sketch6.addConstraint(Sketcher.Constraint("Horizontal", 1))
sketch6.addConstraint(Sketcher.Constraint("Vertical", 2))
sketch6.addConstraint(Sketcher.Constraint("Horizontal", 3))
sketch6.addConstraint(Sketcher.Constraint("PointOnObject", 2, 2, -1))
sketch6.addConstraint(Sketcher.Constraint("DistanceX", 1, 1, 1, 2, 2000.0))
sketch6.addConstraint(Sketcher.Constraint("DistanceY", 0, 2, 0, 1, 1000.0))
sketch6.addConstraint(Sketcher.Constraint("DistanceX", -1, 1, 0, 2, 3000.0))
pad6 = doc.addObject("PartDesign::Pad", "Pad005")
body6.addObject(pad6)
pad6.Profile = sketch6
pad6.Length = 500
body7 = doc.addObject("PartDesign::Body", "Body006")
body7.AllowCompound = True

# Sketch on XY plane
sketch7 = doc.addObject("Sketcher::SketchObject", "Sketch006")
body7.addObject(sketch7)
sketch7.AttachmentSupport = (doc.getObject("XY_Plane006"), [""])
sketch7.MapMode = "FlatFace"
sketch7.addGeometry(Part.LineSegment(V(150, 2000, 0), V(7850, 2000, 0)), False)
sketch7.addGeometry(Part.LineSegment(V(7850, 2000, 0), V(7850, 2450, 0)), False)
sketch7.addGeometry(Part.LineSegment(V(7850, 2450, 0), V(10750, 2450, 0)), False)
sketch7.addGeometry(Part.LineSegment(V(10750, 2450, 0), V(10750, 6000, 0)), False)
sketch7.addGeometry(Part.LineSegment(V(10750, 6000, 0), V(7000, 6000, 0)), False)
sketch7.addGeometry(Part.LineSegment(V(7000, 6000, 0), V(7000, 8000, 0)), False)
sketch7.addGeometry(Part.LineSegment(V(7000, 8000, 0), V(1000, 8000, 0)), False)
sketch7.addGeometry(Part.LineSegment(V(1000, 8000, 0), V(1000, 6000, 0)), False)
sketch7.addGeometry(Part.LineSegment(V(1000, 6000, 0), V(-2750, 6000, 0)), False)
sketch7.addGeometry(Part.LineSegment(V(-2750, 6000, 0), V(-2750, 2450, 0)), False)
sketch7.addGeometry(Part.LineSegment(V(-2750, 2450, 0), V(150, 2450, 0)), False)
sketch7.addGeometry(Part.LineSegment(V(150, 2450, 0), V(150, 2000, 0)), False)
sketch7.addGeometry(Part.LineSegment(V(-520, -280, 0), V(-520, -880, 0)), False)
sketch7.addGeometry(Part.LineSegment(V(-520, -880, 0), V(80, -880, 0)), False)
sketch7.addGeometry(Part.LineSegment(V(80, -880, 0), V(80, -280, 0)), False)
sketch7.addGeometry(Part.LineSegment(V(80, -280, 0), V(-520, -280, 0)), False)
sketch7.addGeometry(Part.LineSegment(V(7920, -280, 0), V(7920, -880, 0)), False)
sketch7.addGeometry(Part.LineSegment(V(7920, -880, 0), V(8520, -880, 0)), False)
sketch7.addGeometry(Part.LineSegment(V(8520, -880, 0), V(8520, -280, 0)), False)
sketch7.addGeometry(Part.LineSegment(V(8520, -280, 0), V(7920, -280, 0)), False)
sketch7.addConstraint(Sketcher.Constraint("Coincident", 0, 2, 1, 1))
sketch7.addConstraint(Sketcher.Constraint("Coincident", 1, 2, 2, 1))
sketch7.addConstraint(Sketcher.Constraint("Coincident", 2, 2, 3, 1))
sketch7.addConstraint(Sketcher.Constraint("Coincident", 3, 2, 4, 1))
sketch7.addConstraint(Sketcher.Constraint("Coincident", 4, 2, 5, 1))
sketch7.addConstraint(Sketcher.Constraint("Coincident", 5, 2, 6, 1))
sketch7.addConstraint(Sketcher.Constraint("Coincident", 6, 2, 7, 1))
sketch7.addConstraint(Sketcher.Constraint("Coincident", 7, 2, 8, 1))
sketch7.addConstraint(Sketcher.Constraint("Coincident", 8, 2, 9, 1))
sketch7.addConstraint(Sketcher.Constraint("Coincident", 9, 2, 10, 1))
sketch7.addConstraint(Sketcher.Constraint("Coincident", 10, 2, 11, 1))
sketch7.addConstraint(Sketcher.Constraint("Coincident", 11, 2, 0, 1))
sketch7.addConstraint(Sketcher.Constraint("Coincident", 12, 2, 13, 1))
sketch7.addConstraint(Sketcher.Constraint("Coincident", 13, 2, 14, 1))
sketch7.addConstraint(Sketcher.Constraint("Coincident", 14, 2, 15, 1))
sketch7.addConstraint(Sketcher.Constraint("Coincident", 15, 2, 12, 1))
sketch7.addConstraint(Sketcher.Constraint("Coincident", 16, 2, 17, 1))
sketch7.addConstraint(Sketcher.Constraint("Coincident", 17, 2, 18, 1))
sketch7.addConstraint(Sketcher.Constraint("Coincident", 18, 2, 19, 1))
sketch7.addConstraint(Sketcher.Constraint("Coincident", 19, 2, 16, 1))
sketch7.addConstraint(Sketcher.Constraint("Horizontal", 0))
sketch7.addConstraint(Sketcher.Constraint("Vertical", 1))
sketch7.addConstraint(Sketcher.Constraint("Horizontal", 2))
sketch7.addConstraint(Sketcher.Constraint("Vertical", 3))
sketch7.addConstraint(Sketcher.Constraint("Horizontal", 4))
sketch7.addConstraint(Sketcher.Constraint("Vertical", 5))
sketch7.addConstraint(Sketcher.Constraint("Horizontal", 6))
sketch7.addConstraint(Sketcher.Constraint("Vertical", 7))
sketch7.addConstraint(Sketcher.Constraint("Horizontal", 8))
sketch7.addConstraint(Sketcher.Constraint("Vertical", 9))
sketch7.addConstraint(Sketcher.Constraint("Horizontal", 10))
sketch7.addConstraint(Sketcher.Constraint("Vertical", 11))
sketch7.addConstraint(Sketcher.Constraint("Vertical", 12))
sketch7.addConstraint(Sketcher.Constraint("Horizontal", 13))
sketch7.addConstraint(Sketcher.Constraint("Vertical", 14))
sketch7.addConstraint(Sketcher.Constraint("Horizontal", 15))
sketch7.addConstraint(Sketcher.Constraint("Vertical", 16))
sketch7.addConstraint(Sketcher.Constraint("Horizontal", 17))
sketch7.addConstraint(Sketcher.Constraint("Vertical", 18))
sketch7.addConstraint(Sketcher.Constraint("Horizontal", 19))
sketch7.addConstraint(Sketcher.Constraint("Horizontal", 4, 2, 7, 2))
sketch7.addConstraint(Sketcher.Constraint("Horizontal", 2, 2, 9, 2))
sketch7.addConstraint(Sketcher.Constraint("Horizontal", 13, 2, 16, 2))
sketch7.addConstraint(Sketcher.Constraint("Horizontal", 15, 2, 18, 2))
sketch7.addConstraint(Sketcher.Constraint("Equal", 4, 8))
sketch7.addConstraint(Sketcher.Constraint("Equal", 2, 10))
sketch7.addConstraint(Sketcher.Constraint("Equal", 15, 17))
sketch7.addConstraint(Sketcher.Constraint("Equal", 19, 12))
sketch7.addConstraint(Sketcher.Constraint("DistanceX", 0, 1, 0, 2, 7700.0))
sketch7.addConstraint(Sketcher.Constraint("DistanceX", 2, 1, 2, 2, 2900.0))
sketch7.addConstraint(Sketcher.Constraint("DistanceX", 4, 2, 4, 1, 3750.0))
sketch7.addConstraint(Sketcher.Constraint("DistanceX", 13, 1, 13, 2, 600.0))
sketch7.addConstraint(Sketcher.Constraint("DistanceY", 1, 1, 1, 2, 450.0))
sketch7.addConstraint(Sketcher.Constraint("DistanceY", 3, 1, 3, 2, 3550.0))
sketch7.addConstraint(Sketcher.Constraint("DistanceY", 5, 1, 5, 2, 2000.0))
sketch7.addConstraint(Sketcher.Constraint("DistanceX", -1, 1, 0, 2, 7850.0))
sketch7.addConstraint(Sketcher.Constraint("DistanceY", -1, 1, 0, 2, 2000.0))
sketch7.addConstraint(Sketcher.Constraint("DistanceX", 12, 2, -1, 1, 520.0))
sketch7.addConstraint(Sketcher.Constraint("DistanceY", 12, 2, -1, 1, 880.0))
sketch7.addConstraint(Sketcher.Constraint("DistanceX", -1, 1, 16, 2, 7920.0))
pad7 = doc.addObject("PartDesign::Pad", "Pad006")
body7.addObject(pad7)
pad7.Profile = sketch7
pad7.Length = 250

doc.recompute()
